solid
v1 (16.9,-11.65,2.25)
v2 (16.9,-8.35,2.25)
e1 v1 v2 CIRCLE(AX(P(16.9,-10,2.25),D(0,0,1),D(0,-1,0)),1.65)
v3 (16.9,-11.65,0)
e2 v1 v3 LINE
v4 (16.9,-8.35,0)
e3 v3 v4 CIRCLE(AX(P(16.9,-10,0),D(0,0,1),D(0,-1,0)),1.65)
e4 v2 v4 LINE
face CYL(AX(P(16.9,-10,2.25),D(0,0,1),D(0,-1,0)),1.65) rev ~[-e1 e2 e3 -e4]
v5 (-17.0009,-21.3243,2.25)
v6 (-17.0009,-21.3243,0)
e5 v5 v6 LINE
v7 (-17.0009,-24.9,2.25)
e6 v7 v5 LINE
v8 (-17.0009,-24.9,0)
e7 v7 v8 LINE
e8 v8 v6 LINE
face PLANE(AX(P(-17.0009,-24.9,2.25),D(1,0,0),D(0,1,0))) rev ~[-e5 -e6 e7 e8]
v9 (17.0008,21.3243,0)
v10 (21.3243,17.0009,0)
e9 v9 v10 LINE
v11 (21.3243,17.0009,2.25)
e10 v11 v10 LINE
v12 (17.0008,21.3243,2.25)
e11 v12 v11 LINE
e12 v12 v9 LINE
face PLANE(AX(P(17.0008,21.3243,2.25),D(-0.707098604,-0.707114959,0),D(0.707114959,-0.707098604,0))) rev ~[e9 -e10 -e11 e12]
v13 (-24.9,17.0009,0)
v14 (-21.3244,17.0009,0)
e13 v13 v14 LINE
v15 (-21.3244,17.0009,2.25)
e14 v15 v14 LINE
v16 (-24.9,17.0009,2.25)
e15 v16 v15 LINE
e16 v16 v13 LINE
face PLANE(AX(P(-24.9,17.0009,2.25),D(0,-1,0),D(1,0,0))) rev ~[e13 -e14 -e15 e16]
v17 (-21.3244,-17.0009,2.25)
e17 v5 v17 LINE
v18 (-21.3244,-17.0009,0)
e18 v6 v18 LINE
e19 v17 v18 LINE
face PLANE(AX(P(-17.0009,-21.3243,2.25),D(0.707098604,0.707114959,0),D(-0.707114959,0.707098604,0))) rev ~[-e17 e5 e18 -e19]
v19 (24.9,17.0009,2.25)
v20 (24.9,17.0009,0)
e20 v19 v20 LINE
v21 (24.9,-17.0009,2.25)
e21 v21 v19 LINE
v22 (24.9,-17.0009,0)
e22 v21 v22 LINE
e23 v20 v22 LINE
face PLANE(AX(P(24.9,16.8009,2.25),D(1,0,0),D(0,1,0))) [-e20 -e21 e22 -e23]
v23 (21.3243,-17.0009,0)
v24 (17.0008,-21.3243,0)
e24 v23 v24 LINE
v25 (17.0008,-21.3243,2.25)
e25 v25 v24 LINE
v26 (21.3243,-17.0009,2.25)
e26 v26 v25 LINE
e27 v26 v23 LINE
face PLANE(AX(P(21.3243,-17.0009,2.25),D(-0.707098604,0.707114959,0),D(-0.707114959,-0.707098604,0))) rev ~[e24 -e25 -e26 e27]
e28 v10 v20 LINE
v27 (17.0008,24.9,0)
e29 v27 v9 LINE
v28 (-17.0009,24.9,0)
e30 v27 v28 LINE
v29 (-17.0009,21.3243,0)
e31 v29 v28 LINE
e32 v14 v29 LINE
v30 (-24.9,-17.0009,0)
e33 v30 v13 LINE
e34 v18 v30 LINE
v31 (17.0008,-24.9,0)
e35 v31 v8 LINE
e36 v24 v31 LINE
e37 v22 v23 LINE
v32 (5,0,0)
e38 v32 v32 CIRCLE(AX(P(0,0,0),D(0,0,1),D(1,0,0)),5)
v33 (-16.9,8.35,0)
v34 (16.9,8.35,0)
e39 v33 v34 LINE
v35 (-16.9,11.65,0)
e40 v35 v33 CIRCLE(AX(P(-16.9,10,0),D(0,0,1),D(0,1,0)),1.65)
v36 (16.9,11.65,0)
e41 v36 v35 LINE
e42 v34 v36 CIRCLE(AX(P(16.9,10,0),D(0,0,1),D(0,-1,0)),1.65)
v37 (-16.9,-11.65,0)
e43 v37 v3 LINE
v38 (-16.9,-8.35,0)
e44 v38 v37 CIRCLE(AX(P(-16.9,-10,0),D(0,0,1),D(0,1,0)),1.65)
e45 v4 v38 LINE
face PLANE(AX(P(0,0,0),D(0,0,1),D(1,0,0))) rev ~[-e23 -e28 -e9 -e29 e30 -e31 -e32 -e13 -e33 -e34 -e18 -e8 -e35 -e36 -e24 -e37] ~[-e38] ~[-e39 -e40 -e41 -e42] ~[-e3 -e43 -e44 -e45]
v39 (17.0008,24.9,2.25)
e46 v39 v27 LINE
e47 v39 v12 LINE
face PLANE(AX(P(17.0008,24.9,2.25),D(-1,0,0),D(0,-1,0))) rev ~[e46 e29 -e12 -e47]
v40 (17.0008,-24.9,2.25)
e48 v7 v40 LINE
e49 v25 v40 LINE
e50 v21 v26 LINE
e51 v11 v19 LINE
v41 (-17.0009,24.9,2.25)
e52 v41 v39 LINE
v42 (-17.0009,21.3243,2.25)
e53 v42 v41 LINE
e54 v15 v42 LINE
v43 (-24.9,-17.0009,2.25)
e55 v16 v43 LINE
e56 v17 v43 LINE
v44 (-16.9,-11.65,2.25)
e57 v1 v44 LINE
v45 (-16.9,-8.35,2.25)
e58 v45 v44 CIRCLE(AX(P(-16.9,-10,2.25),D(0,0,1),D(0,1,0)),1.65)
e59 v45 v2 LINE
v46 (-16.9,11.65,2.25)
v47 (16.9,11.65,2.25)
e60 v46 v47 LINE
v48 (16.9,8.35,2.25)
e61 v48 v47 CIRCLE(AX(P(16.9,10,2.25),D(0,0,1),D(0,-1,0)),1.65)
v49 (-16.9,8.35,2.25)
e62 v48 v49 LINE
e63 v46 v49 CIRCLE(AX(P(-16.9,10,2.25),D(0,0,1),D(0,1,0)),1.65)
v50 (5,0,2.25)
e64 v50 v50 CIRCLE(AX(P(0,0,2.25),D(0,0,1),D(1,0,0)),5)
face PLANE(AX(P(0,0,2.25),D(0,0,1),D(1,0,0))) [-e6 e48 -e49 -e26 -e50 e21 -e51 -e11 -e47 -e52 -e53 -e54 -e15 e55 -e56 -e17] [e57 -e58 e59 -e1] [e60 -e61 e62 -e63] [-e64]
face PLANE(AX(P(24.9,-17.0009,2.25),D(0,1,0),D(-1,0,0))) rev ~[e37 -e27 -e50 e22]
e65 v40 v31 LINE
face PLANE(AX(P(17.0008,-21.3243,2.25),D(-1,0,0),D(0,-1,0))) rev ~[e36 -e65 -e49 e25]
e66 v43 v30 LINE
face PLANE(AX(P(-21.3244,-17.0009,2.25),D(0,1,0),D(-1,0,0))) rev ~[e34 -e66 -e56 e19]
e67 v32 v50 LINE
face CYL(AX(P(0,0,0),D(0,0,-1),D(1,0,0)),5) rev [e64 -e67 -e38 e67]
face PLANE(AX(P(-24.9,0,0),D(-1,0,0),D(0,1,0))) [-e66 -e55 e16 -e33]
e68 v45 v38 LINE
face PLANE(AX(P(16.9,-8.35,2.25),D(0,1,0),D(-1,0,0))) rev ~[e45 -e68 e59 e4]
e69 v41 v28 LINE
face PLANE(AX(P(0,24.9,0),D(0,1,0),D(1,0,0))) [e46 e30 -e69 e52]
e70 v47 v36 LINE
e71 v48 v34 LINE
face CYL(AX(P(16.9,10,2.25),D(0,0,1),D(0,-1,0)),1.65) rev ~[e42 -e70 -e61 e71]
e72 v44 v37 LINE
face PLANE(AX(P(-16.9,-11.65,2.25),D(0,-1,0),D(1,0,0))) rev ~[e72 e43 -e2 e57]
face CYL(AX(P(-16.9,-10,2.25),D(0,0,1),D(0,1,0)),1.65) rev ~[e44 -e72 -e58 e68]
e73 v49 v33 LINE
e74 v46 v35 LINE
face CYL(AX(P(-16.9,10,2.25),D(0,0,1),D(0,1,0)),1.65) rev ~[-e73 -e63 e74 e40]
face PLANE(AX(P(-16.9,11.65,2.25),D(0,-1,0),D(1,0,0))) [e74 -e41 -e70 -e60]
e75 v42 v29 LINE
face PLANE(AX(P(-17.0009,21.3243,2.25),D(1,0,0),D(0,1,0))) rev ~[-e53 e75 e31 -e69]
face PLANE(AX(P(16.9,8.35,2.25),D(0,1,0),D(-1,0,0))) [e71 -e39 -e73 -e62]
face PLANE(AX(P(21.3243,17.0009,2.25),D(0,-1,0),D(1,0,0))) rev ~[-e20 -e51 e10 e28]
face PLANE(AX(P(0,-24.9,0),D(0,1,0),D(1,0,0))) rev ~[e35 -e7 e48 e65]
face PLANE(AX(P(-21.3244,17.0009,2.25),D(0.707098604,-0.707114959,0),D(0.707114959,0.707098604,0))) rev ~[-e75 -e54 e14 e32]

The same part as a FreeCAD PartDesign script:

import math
import FreeCAD as App
import Part
import Sketcher

doc = App.newDocument("Part")
body = doc.addObject("PartDesign::Body", "Body")

sketch1 = body.newObject("Sketcher::SketchObject", "Sketch")
sketch1.AttachmentSupport = (doc.getObject("XY_Plane"), [""])
sketch1.MapMode = "FlatFace"
sketch1.addGeometry([
    Part.LineSegment(App.Vector(16.8, 24.9, 0), App.Vector(-16.8, 24.9, 0)),
    Part.LineSegment(App.Vector(-16.8, 24.9, 0), App.Vector(-16.8, 21.2, 0)),
    Part.LineSegment(App.Vector(-16.8, 21.2, 0), App.Vector(-21.2, 16.8, 0)),
    Part.LineSegment(App.Vector(-21.2, 16.8, 0), App.Vector(-24.9, 16.8, 0)),
    Part.LineSegment(App.Vector(-24.9, 16.8, 0), App.Vector(-24.9, -16.8, 0)),
    Part.LineSegment(App.Vector(-24.9, -16.8, 0), App.Vector(-21.2, -16.8, 0)),
    Part.LineSegment(App.Vector(-21.2, -16.8, 0), App.Vector(-16.8, -21.2, 0)),
    Part.LineSegment(App.Vector(-16.8, -21.2, 0), App.Vector(-16.8, -24.9, 0)),
    Part.LineSegment(App.Vector(-16.8, -24.9, 0), App.Vector(16.8, -24.9, 0)),
    Part.LineSegment(App.Vector(16.8, -24.9, 0), App.Vector(16.8, -21.2, 0)),
    Part.LineSegment(App.Vector(16.8, -21.2, 0), App.Vector(21.2, -16.8, 0)),
    Part.LineSegment(App.Vector(21.2, -16.8, 0), App.Vector(24.9, -16.8, 0)),
    Part.LineSegment(App.Vector(24.9, -16.8, 0), App.Vector(24.9, 16.8, 0)),
    Part.LineSegment(App.Vector(24.9, 16.8, 0), App.Vector(21.2, 16.8, 0)),
    Part.LineSegment(App.Vector(21.2, 16.8, 0), App.Vector(16.8, 21.2, 0)),
    Part.LineSegment(App.Vector(16.8, 21.2, 0), App.Vector(16.8, 24.9, 0)),
    Part.Circle(App.Vector(0, 0, 0), App.Vector(0, 0, 1), 5),
], False)
sketch1.addConstraint([
    Sketcher.Constraint("Coincident", 0, 2, 1, 1),
    Sketcher.Constraint("Coincident", 1, 2, 2, 1),
    Sketcher.Constraint("Coincident", 2, 2, 3, 1),
    Sketcher.Constraint("Coincident", 3, 2, 4, 1),
    Sketcher.Constraint("Coincident", 4, 2, 5, 1),
    Sketcher.Constraint("Coincident", 5, 2, 6, 1),
    Sketcher.Constraint("Coincident", 6, 2, 7, 1),
    Sketcher.Constraint("Coincident", 7, 2, 8, 1),
    Sketcher.Constraint("Coincident", 8, 2, 9, 1),
    Sketcher.Constraint("Coincident", 9, 2, 10, 1),
    Sketcher.Constraint("Coincident", 10, 2, 11, 1),
    Sketcher.Constraint("Coincident", 11, 2, 12, 1),
    Sketcher.Constraint("Coincident", 12, 2, 13, 1),
    Sketcher.Constraint("Coincident", 13, 2, 14, 1),
    Sketcher.Constraint("Coincident", 14, 2, 15, 1),
    Sketcher.Constraint("Coincident", 15, 2, 0, 1),
    Sketcher.Constraint("Horizontal", 0),
    Sketcher.Constraint("Vertical", 1),
    Sketcher.Constraint("Horizontal", 3),
    Sketcher.Constraint("Vertical", 4),
    Sketcher.Constraint("Horizontal", 5),
    Sketcher.Constraint("Vertical", 7),
    Sketcher.Constraint("Horizontal", 8),
    Sketcher.Constraint("Vertical", 9),
    Sketcher.Constraint("Horizontal", 11),
    Sketcher.Constraint("Vertical", 12),
    Sketcher.Constraint("Horizontal", 13),
    Sketcher.Constraint("Vertical", 15),
    Sketcher.Constraint("Coincident", 16, 3, -1, 1),
    Sketcher.Constraint("Symmetric", 0, 2, 8, 2, -1, 1),
    Sketcher.Constraint("Symmetric", 2, 2, 10, 2, -1, 1),
    Sketcher.Constraint("Symmetric", 4, 2, 12, 2, -1, 1),
    Sketcher.Constraint("Symmetric", 6, 2, 14, 2, -1, 1),
    Sketcher.Constraint("Symmetric", 6, 2, 9, 2, -2),
    Sketcher.Constraint("Symmetric", 5, 2, 10, 2, -2),
    Sketcher.Constraint("Perpendicular", 2, 6),
    Sketcher.Constraint("Perpendicular", 6, 10),
    Sketcher.Constraint("Perpendicular", 10, 14),
    Sketcher.Constraint("Equal", 13, 1),
    Sketcher.Constraint("Equal", 8, 4),
    Sketcher.Constraint("Diameter", 16, 10.0),
    Sketcher.Constraint("DistanceY", -1, 1, 0, 2, 24.9),
    Sketcher.Constraint("Distance", 2, 6.28),
    Sketcher.Constraint("DistanceX", 0, 2, 0, 1, 33.6018),
])
pad1 = body.newObject("PartDesign::Pad", "Pad")
pad1.Profile = sketch1
pad1.Length = 2.25

sketch2 = body.newObject("Sketcher::SketchObject", "Sketch001")
sketch2.AttachmentSupport = (doc.getObject("XY_Plane"), [""])
sketch2.MapMode = "FlatFace"
sketch2.addGeometry([
    Part.Circle(App.Vector(9.7, -10, 0), App.Vector(0, 0, 1), 1.6),
    Part.Circle(App.Vector(9.7, 10, 0), App.Vector(0, 0, 1), 1.6),
], False)
sketch2.addConstraint([
    Sketcher.Constraint("Equal", 0, 1),
    Sketcher.Constraint("Symmetric", 0, 3, 1, 3, -1),
    Sketcher.Constraint("Diameter", 0, 3.3),
    Sketcher.Constraint("DistanceY", 0, 3, -1, 1, 10.0),
    Sketcher.Constraint("DistanceX", -1, 1, 0, 3, 9.7),
])
doc.recompute()
hole = body.newObject("PartDesign::Hole", "Hole")
hole.Profile = sketch2
hole.ThreadType = "None"
hole.Diameter = 3.3
hole.DepthType = "Dimension"
hole.Depth = 12
hole.DrillPoint = "Angled"
hole.DrillPointAngle = 118
hole.Reversed = True

sketch3 = body.newObject("Sketcher::SketchObject", "Sketch002")
sketch3.AttachmentSupport = (doc.getObject("XY_Plane"), [""])
sketch3.MapMode = "FlatFace"
sketch3.AttachmentOffset = App.Placement(App.Vector(0, 0, 2.25), App.Rotation())
sketch3.addGeometry([
    Part.LineSegment(App.Vector(-16.9, 8.3, 0), App.Vector(16.9, 8.3, 0)),
    Part.ArcOfCircle(Part.Circle(App.Vector(16.9, 10, 0), App.Vector(0, 0, 1), 1.7), math.radians(-90), math.radians(90)),
    Part.LineSegment(App.Vector(16.9, 11.7, 0), App.Vector(-16.9, 11.7, 0)),
    Part.ArcOfCircle(Part.Circle(App.Vector(-16.9, 10, 0), App.Vector(0, 0, 1), 1.7), math.radians(90), math.radians(270)),
    Part.ArcOfCircle(Part.Circle(App.Vector(16.9, -10, 0), App.Vector(0, 0, 1), 1.6), math.radians(-90), math.radians(90)),
    Part.LineSegment(App.Vector(16.9, -8.3, 0), App.Vector(-16.9, -8.3, 0)),
    Part.ArcOfCircle(Part.Circle(App.Vector(-16.9, -10, 0), App.Vector(0, 0, 1), 1.6), math.radians(90), math.radians(270)),
    Part.LineSegment(App.Vector(-16.9, -11.7, 0), App.Vector(16.9, -11.7, 0)),
], False)
sketch3.addConstraint([
    Sketcher.Constraint("Tangent", 0, 2, 1, 1),
    Sketcher.Constraint("Tangent", 1, 2, 2, 1),
    Sketcher.Constraint("Tangent", 2, 2, 3, 1),
    Sketcher.Constraint("Tangent", 3, 2, 0, 1),
    Sketcher.Constraint("Tangent", 4, 2, 5, 1),
    Sketcher.Constraint("Tangent", 5, 2, 6, 1),
    Sketcher.Constraint("Tangent", 6, 2, 7, 1),
    Sketcher.Constraint("Tangent", 7, 2, 4, 1),
    Sketcher.Constraint("Horizontal", 0),
    Sketcher.Constraint("Horizontal", 2),
    Sketcher.Constraint("Horizontal", 5),
    Sketcher.Constraint("Horizontal", 7),
    Sketcher.Constraint("Equal", 3, 4),
    Sketcher.Constraint("Symmetric", 3, 3, 4, 3, -1, 1),
    Sketcher.Constraint("Vertical", 1, 3, 4, 3),
    Sketcher.Constraint("Vertical", 3, 3, 6, 3),
    Sketcher.Constraint("Radius", 1, 1.65),
    Sketcher.Constraint("DistanceX", 0, 1, 0, 2, 33.8),
    Sketcher.Constraint("DistanceY", -1, 1, 1, 3, 10.0),
])
pocket1 = body.newObject("PartDesign::Pocket", "Pocket")
pocket1.Profile = sketch3
pocket1.Type = "ThroughAll"

sketch4 = body.newObject("Sketcher::SketchObject", "Sketch003")
sketch4.AttachmentSupport = (doc.getObject("XY_Plane"), [""])
sketch4.MapMode = "FlatFace"
sketch4.AttachmentOffset = App.Placement(App.Vector(0, 0, 2.25), App.Rotation())
sketch4.addGeometry([
    Part.LineSegment(App.Vector(-21.24, -16.8, 0), App.Vector(-24.9, -16.8, 0)),
    Part.LineSegment(App.Vector(-24.9, -16.8, 0), App.Vector(-24.9, -17, 0)),
    Part.LineSegment(App.Vector(-24.9, -17, 0), App.Vector(-21.32, -17, 0)),
    Part.LineSegment(App.Vector(-21.32, -17, 0), App.Vector(-17, -21.32, 0)),
    Part.LineSegment(App.Vector(-17, -21.32, 0), App.Vector(-17, -24.9, 0)),
    Part.LineSegment(App.Vector(-17, -24.9, 0), App.Vector(-16.8, -24.9, 0)),
    Part.LineSegment(App.Vector(-16.8, -24.9, 0), App.Vector(-16.8, -21.24, 0)),
    Part.LineSegment(App.Vector(-16.8, -21.24, 0), App.Vector(-21.24, -16.8, 0)),
    Part.LineSegment(App.Vector(-16.8, 21.24, 0), App.Vector(-16.8, 24.9, 0)),
    Part.LineSegment(App.Vector(-16.8, 24.9, 0), App.Vector(-17, 24.9, 0)),
    Part.LineSegment(App.Vector(-17, 24.9, 0), App.Vector(-17, 21.32, 0)),
    Part.LineSegment(App.Vector(-17, 21.32, 0), App.Vector(-21.32, 17, 0)),
    Part.LineSegment(App.Vector(-21.32, 17, 0), App.Vector(-24.9, 17, 0)),
    Part.LineSegment(App.Vector(-24.9, 17, 0), App.Vector(-24.9, 16.8, 0)),
    Part.LineSegment(App.Vector(-24.9, 16.8, 0), App.Vector(-21.24, 16.8, 0)),
    Part.LineSegment(App.Vector(-21.24, 16.8, 0), App.Vector(-16.8, 21.24, 0)),
    Part.LineSegment(App.Vector(16.8, 24.9, 0), App.Vector(16.8, 21.24, 0)),
    Part.LineSegment(App.Vector(16.8, 21.24, 0), App.Vector(21.24, 16.8, 0)),
    Part.LineSegment(App.Vector(21.24, 16.8, 0), App.Vector(24.9, 16.8, 0)),
    Part.LineSegment(App.Vector(24.9, 16.8, 0), App.Vector(24.9, 17, 0)),
    Part.LineSegment(App.Vector(24.9, 17, 0), App.Vector(21.32, 17, 0)),
    Part.LineSegment(App.Vector(21.32, 17, 0), App.Vector(17, 21.32, 0)),
    Part.LineSegment(App.Vector(17, 21.32, 0), App.Vector(17, 24.9, 0)),
    Part.LineSegment(App.Vector(17, 24.9, 0), App.Vector(16.8, 24.9, 0)),
    Part.LineSegment(App.Vector(16.8, -21.24, 0), App.Vector(16.8, -24.9, 0)),
    Part.LineSegment(App.Vector(16.8, -24.9, 0), App.Vector(17, -24.9, 0)),
    Part.LineSegment(App.Vector(17, -24.9, 0), App.Vector(17, -21.32, 0)),
    Part.LineSegment(App.Vector(17, -21.32, 0), App.Vector(21.32, -17, 0)),
    Part.LineSegment(App.Vector(21.32, -17, 0), App.Vector(24.9, -17, 0)),
    Part.LineSegment(App.Vector(24.9, -17, 0), App.Vector(24.9, -16.8, 0)),
    Part.LineSegment(App.Vector(24.9, -16.8, 0), App.Vector(21.24, -16.8, 0)),
    Part.LineSegment(App.Vector(21.24, -16.8, 0), App.Vector(16.8, -21.24, 0)),
], False)
sketch4.addConstraint([
    Sketcher.Constraint("Coincident", 0, 2, 1, 1),
    Sketcher.Constraint("Coincident", 1, 2, 2, 1),
    Sketcher.Constraint("Coincident", 2, 2, 3, 1),
    Sketcher.Constraint("Coincident", 3, 2, 4, 1),
    Sketcher.Constraint("Coincident", 4, 2, 5, 1),
    Sketcher.Constraint("Coincident", 5, 2, 6, 1),
    Sketcher.Constraint("Coincident", 6, 2, 7, 1),
    Sketcher.Constraint("Coincident", 7, 2, 0, 1),
    Sketcher.Constraint("Coincident", 8, 2, 9, 1),
    Sketcher.Constraint("Coincident", 9, 2, 10, 1),
    Sketcher.Constraint("Coincident", 10, 2, 11, 1),
    Sketcher.Constraint("Coincident", 11, 2, 12, 1),
    Sketcher.Constraint("Coincident", 12, 2, 13, 1),
    Sketcher.Constraint("Coincident", 13, 2, 14, 1),
    Sketcher.Constraint("Coincident", 14, 2, 15, 1),
    Sketcher.Constraint("Coincident", 15, 2, 8, 1),
    Sketcher.Constraint("Coincident", 16, 2, 17, 1),
    Sketcher.Constraint("Coincident", 17, 2, 18, 1),
    Sketcher.Constraint("Coincident", 18, 2, 19, 1),
    Sketcher.Constraint("Coincident", 19, 2, 20, 1),
    Sketcher.Constraint("Coincident", 20, 2, 21, 1),
    Sketcher.Constraint("Coincident", 21, 2, 22, 1),
    Sketcher.Constraint("Coincident", 22, 2, 23, 1),
    Sketcher.Constraint("Coincident", 23, 2, 16, 1),
    Sketcher.Constraint("Coincident", 24, 2, 25, 1),
    Sketcher.Constraint("Coincident", 25, 2, 26, 1),
    Sketcher.Constraint("Coincident", 26, 2, 27, 1),
    Sketcher.Constraint("Coincident", 27, 2, 28, 1),
    Sketcher.Constraint("Coincident", 28, 2, 29, 1),
    Sketcher.Constraint("Coincident", 29, 2, 30, 1),
    Sketcher.Constraint("Coincident", 30, 2, 31, 1),
    Sketcher.Constraint("Coincident", 31, 2, 24, 1),
    Sketcher.Constraint("Horizontal", 0),
    Sketcher.Constraint("Vertical", 1),
    Sketcher.Constraint("Horizontal", 2),
    Sketcher.Constraint("Vertical", 4),
    Sketcher.Constraint("Horizontal", 5),
    Sketcher.Constraint("Vertical", 6),
    Sketcher.Constraint("Vertical", 8),
    Sketcher.Constraint("Horizontal", 9),
    Sketcher.Constraint("Vertical", 10),
    Sketcher.Constraint("Horizontal", 12),
    Sketcher.Constraint("Vertical", 13),
    Sketcher.Constraint("Horizontal", 14),
    Sketcher.Constraint("Vertical", 16),
    Sketcher.Constraint("Horizontal", 18),
    Sketcher.Constraint("Vertical", 19),
    Sketcher.Constraint("Horizontal", 20),
    Sketcher.Constraint("Vertical", 22),
    Sketcher.Constraint("Horizontal", 23),
    Sketcher.Constraint("Vertical", 24),
    Sketcher.Constraint("Horizontal", 25),
    Sketcher.Constraint("Vertical", 26),
    Sketcher.Constraint("Horizontal", 28),
    Sketcher.Constraint("Vertical", 29),
    Sketcher.Constraint("Horizontal", 30),
    Sketcher.Constraint("Symmetric", 6, 2, 16, 2, -1, 1),
    Sketcher.Constraint("Symmetric", 7, 2, 17, 2, -1, 1),
    Sketcher.Constraint("Symmetric", 1, 2, 19, 2, -1, 1),
    Sketcher.Constraint("Symmetric", 3, 2, 21, 2, -1, 1),
    Sketcher.Constraint("Symmetric", 8, 2, 24, 2, -1, 1),
    Sketcher.Constraint("Symmetric", 10, 2, 26, 2, -1, 1),
    Sketcher.Constraint("Symmetric", 11, 2, 27, 2, -1, 1),
    Sketcher.Constraint("Symmetric", 13, 2, 29, 2, -1, 1),
    Sketcher.Constraint("Symmetric", 15, 2, 16, 2, -2),
    Sketcher.Constraint("Symmetric", 14, 2, 17, 2, -2),
    Sketcher.Constraint("Symmetric", 12, 2, 19, 2, -2),
    Sketcher.Constraint("Symmetric", 10, 2, 21, 2, -2),
    Sketcher.Constraint("Parallel", 3, 7),
    Sketcher.Constraint("Perpendicular", 7, 11),
    Sketcher.Constraint("Parallel", 11, 15),
    Sketcher.Constraint("Parallel", 17, 21),
    Sketcher.Constraint("Parallel", 27, 31),
    Sketcher.Constraint("Horizontal", 9, 2, 22, 2),
    Sketcher.Constraint("Horizontal", 5, 2, 24, 2),
    Sketcher.Constraint("Horizontal", 6, 2, 31, 2),
    Sketcher.Constraint("Equal", 25, 1),
    Sketcher.Constraint("Equal", 28, 4),
    Sketcher.Constraint("DistanceX", 5, 1, 5, 2, 0.2),
    Sketcher.Constraint("DistanceX", 0, 2, -1, 1, 24.9),
    Sketcher.Constraint("DistanceY", 4, 2, -1, 1, 24.9),
    Sketcher.Constraint("Distance", 7, 6.28),
    Sketcher.Constraint("DistanceX", 0, 2, 0, 1, 3.6585),
    Sketcher.Constraint("DistanceX", 2, 1, 2, 2, 3.5756),
])
pad2 = body.newObject("PartDesign::Pad", "Pad001")
pad2.Profile = sketch4
pad2.Length = 2.25
pad2.Reversed = True

doc.recompute()
